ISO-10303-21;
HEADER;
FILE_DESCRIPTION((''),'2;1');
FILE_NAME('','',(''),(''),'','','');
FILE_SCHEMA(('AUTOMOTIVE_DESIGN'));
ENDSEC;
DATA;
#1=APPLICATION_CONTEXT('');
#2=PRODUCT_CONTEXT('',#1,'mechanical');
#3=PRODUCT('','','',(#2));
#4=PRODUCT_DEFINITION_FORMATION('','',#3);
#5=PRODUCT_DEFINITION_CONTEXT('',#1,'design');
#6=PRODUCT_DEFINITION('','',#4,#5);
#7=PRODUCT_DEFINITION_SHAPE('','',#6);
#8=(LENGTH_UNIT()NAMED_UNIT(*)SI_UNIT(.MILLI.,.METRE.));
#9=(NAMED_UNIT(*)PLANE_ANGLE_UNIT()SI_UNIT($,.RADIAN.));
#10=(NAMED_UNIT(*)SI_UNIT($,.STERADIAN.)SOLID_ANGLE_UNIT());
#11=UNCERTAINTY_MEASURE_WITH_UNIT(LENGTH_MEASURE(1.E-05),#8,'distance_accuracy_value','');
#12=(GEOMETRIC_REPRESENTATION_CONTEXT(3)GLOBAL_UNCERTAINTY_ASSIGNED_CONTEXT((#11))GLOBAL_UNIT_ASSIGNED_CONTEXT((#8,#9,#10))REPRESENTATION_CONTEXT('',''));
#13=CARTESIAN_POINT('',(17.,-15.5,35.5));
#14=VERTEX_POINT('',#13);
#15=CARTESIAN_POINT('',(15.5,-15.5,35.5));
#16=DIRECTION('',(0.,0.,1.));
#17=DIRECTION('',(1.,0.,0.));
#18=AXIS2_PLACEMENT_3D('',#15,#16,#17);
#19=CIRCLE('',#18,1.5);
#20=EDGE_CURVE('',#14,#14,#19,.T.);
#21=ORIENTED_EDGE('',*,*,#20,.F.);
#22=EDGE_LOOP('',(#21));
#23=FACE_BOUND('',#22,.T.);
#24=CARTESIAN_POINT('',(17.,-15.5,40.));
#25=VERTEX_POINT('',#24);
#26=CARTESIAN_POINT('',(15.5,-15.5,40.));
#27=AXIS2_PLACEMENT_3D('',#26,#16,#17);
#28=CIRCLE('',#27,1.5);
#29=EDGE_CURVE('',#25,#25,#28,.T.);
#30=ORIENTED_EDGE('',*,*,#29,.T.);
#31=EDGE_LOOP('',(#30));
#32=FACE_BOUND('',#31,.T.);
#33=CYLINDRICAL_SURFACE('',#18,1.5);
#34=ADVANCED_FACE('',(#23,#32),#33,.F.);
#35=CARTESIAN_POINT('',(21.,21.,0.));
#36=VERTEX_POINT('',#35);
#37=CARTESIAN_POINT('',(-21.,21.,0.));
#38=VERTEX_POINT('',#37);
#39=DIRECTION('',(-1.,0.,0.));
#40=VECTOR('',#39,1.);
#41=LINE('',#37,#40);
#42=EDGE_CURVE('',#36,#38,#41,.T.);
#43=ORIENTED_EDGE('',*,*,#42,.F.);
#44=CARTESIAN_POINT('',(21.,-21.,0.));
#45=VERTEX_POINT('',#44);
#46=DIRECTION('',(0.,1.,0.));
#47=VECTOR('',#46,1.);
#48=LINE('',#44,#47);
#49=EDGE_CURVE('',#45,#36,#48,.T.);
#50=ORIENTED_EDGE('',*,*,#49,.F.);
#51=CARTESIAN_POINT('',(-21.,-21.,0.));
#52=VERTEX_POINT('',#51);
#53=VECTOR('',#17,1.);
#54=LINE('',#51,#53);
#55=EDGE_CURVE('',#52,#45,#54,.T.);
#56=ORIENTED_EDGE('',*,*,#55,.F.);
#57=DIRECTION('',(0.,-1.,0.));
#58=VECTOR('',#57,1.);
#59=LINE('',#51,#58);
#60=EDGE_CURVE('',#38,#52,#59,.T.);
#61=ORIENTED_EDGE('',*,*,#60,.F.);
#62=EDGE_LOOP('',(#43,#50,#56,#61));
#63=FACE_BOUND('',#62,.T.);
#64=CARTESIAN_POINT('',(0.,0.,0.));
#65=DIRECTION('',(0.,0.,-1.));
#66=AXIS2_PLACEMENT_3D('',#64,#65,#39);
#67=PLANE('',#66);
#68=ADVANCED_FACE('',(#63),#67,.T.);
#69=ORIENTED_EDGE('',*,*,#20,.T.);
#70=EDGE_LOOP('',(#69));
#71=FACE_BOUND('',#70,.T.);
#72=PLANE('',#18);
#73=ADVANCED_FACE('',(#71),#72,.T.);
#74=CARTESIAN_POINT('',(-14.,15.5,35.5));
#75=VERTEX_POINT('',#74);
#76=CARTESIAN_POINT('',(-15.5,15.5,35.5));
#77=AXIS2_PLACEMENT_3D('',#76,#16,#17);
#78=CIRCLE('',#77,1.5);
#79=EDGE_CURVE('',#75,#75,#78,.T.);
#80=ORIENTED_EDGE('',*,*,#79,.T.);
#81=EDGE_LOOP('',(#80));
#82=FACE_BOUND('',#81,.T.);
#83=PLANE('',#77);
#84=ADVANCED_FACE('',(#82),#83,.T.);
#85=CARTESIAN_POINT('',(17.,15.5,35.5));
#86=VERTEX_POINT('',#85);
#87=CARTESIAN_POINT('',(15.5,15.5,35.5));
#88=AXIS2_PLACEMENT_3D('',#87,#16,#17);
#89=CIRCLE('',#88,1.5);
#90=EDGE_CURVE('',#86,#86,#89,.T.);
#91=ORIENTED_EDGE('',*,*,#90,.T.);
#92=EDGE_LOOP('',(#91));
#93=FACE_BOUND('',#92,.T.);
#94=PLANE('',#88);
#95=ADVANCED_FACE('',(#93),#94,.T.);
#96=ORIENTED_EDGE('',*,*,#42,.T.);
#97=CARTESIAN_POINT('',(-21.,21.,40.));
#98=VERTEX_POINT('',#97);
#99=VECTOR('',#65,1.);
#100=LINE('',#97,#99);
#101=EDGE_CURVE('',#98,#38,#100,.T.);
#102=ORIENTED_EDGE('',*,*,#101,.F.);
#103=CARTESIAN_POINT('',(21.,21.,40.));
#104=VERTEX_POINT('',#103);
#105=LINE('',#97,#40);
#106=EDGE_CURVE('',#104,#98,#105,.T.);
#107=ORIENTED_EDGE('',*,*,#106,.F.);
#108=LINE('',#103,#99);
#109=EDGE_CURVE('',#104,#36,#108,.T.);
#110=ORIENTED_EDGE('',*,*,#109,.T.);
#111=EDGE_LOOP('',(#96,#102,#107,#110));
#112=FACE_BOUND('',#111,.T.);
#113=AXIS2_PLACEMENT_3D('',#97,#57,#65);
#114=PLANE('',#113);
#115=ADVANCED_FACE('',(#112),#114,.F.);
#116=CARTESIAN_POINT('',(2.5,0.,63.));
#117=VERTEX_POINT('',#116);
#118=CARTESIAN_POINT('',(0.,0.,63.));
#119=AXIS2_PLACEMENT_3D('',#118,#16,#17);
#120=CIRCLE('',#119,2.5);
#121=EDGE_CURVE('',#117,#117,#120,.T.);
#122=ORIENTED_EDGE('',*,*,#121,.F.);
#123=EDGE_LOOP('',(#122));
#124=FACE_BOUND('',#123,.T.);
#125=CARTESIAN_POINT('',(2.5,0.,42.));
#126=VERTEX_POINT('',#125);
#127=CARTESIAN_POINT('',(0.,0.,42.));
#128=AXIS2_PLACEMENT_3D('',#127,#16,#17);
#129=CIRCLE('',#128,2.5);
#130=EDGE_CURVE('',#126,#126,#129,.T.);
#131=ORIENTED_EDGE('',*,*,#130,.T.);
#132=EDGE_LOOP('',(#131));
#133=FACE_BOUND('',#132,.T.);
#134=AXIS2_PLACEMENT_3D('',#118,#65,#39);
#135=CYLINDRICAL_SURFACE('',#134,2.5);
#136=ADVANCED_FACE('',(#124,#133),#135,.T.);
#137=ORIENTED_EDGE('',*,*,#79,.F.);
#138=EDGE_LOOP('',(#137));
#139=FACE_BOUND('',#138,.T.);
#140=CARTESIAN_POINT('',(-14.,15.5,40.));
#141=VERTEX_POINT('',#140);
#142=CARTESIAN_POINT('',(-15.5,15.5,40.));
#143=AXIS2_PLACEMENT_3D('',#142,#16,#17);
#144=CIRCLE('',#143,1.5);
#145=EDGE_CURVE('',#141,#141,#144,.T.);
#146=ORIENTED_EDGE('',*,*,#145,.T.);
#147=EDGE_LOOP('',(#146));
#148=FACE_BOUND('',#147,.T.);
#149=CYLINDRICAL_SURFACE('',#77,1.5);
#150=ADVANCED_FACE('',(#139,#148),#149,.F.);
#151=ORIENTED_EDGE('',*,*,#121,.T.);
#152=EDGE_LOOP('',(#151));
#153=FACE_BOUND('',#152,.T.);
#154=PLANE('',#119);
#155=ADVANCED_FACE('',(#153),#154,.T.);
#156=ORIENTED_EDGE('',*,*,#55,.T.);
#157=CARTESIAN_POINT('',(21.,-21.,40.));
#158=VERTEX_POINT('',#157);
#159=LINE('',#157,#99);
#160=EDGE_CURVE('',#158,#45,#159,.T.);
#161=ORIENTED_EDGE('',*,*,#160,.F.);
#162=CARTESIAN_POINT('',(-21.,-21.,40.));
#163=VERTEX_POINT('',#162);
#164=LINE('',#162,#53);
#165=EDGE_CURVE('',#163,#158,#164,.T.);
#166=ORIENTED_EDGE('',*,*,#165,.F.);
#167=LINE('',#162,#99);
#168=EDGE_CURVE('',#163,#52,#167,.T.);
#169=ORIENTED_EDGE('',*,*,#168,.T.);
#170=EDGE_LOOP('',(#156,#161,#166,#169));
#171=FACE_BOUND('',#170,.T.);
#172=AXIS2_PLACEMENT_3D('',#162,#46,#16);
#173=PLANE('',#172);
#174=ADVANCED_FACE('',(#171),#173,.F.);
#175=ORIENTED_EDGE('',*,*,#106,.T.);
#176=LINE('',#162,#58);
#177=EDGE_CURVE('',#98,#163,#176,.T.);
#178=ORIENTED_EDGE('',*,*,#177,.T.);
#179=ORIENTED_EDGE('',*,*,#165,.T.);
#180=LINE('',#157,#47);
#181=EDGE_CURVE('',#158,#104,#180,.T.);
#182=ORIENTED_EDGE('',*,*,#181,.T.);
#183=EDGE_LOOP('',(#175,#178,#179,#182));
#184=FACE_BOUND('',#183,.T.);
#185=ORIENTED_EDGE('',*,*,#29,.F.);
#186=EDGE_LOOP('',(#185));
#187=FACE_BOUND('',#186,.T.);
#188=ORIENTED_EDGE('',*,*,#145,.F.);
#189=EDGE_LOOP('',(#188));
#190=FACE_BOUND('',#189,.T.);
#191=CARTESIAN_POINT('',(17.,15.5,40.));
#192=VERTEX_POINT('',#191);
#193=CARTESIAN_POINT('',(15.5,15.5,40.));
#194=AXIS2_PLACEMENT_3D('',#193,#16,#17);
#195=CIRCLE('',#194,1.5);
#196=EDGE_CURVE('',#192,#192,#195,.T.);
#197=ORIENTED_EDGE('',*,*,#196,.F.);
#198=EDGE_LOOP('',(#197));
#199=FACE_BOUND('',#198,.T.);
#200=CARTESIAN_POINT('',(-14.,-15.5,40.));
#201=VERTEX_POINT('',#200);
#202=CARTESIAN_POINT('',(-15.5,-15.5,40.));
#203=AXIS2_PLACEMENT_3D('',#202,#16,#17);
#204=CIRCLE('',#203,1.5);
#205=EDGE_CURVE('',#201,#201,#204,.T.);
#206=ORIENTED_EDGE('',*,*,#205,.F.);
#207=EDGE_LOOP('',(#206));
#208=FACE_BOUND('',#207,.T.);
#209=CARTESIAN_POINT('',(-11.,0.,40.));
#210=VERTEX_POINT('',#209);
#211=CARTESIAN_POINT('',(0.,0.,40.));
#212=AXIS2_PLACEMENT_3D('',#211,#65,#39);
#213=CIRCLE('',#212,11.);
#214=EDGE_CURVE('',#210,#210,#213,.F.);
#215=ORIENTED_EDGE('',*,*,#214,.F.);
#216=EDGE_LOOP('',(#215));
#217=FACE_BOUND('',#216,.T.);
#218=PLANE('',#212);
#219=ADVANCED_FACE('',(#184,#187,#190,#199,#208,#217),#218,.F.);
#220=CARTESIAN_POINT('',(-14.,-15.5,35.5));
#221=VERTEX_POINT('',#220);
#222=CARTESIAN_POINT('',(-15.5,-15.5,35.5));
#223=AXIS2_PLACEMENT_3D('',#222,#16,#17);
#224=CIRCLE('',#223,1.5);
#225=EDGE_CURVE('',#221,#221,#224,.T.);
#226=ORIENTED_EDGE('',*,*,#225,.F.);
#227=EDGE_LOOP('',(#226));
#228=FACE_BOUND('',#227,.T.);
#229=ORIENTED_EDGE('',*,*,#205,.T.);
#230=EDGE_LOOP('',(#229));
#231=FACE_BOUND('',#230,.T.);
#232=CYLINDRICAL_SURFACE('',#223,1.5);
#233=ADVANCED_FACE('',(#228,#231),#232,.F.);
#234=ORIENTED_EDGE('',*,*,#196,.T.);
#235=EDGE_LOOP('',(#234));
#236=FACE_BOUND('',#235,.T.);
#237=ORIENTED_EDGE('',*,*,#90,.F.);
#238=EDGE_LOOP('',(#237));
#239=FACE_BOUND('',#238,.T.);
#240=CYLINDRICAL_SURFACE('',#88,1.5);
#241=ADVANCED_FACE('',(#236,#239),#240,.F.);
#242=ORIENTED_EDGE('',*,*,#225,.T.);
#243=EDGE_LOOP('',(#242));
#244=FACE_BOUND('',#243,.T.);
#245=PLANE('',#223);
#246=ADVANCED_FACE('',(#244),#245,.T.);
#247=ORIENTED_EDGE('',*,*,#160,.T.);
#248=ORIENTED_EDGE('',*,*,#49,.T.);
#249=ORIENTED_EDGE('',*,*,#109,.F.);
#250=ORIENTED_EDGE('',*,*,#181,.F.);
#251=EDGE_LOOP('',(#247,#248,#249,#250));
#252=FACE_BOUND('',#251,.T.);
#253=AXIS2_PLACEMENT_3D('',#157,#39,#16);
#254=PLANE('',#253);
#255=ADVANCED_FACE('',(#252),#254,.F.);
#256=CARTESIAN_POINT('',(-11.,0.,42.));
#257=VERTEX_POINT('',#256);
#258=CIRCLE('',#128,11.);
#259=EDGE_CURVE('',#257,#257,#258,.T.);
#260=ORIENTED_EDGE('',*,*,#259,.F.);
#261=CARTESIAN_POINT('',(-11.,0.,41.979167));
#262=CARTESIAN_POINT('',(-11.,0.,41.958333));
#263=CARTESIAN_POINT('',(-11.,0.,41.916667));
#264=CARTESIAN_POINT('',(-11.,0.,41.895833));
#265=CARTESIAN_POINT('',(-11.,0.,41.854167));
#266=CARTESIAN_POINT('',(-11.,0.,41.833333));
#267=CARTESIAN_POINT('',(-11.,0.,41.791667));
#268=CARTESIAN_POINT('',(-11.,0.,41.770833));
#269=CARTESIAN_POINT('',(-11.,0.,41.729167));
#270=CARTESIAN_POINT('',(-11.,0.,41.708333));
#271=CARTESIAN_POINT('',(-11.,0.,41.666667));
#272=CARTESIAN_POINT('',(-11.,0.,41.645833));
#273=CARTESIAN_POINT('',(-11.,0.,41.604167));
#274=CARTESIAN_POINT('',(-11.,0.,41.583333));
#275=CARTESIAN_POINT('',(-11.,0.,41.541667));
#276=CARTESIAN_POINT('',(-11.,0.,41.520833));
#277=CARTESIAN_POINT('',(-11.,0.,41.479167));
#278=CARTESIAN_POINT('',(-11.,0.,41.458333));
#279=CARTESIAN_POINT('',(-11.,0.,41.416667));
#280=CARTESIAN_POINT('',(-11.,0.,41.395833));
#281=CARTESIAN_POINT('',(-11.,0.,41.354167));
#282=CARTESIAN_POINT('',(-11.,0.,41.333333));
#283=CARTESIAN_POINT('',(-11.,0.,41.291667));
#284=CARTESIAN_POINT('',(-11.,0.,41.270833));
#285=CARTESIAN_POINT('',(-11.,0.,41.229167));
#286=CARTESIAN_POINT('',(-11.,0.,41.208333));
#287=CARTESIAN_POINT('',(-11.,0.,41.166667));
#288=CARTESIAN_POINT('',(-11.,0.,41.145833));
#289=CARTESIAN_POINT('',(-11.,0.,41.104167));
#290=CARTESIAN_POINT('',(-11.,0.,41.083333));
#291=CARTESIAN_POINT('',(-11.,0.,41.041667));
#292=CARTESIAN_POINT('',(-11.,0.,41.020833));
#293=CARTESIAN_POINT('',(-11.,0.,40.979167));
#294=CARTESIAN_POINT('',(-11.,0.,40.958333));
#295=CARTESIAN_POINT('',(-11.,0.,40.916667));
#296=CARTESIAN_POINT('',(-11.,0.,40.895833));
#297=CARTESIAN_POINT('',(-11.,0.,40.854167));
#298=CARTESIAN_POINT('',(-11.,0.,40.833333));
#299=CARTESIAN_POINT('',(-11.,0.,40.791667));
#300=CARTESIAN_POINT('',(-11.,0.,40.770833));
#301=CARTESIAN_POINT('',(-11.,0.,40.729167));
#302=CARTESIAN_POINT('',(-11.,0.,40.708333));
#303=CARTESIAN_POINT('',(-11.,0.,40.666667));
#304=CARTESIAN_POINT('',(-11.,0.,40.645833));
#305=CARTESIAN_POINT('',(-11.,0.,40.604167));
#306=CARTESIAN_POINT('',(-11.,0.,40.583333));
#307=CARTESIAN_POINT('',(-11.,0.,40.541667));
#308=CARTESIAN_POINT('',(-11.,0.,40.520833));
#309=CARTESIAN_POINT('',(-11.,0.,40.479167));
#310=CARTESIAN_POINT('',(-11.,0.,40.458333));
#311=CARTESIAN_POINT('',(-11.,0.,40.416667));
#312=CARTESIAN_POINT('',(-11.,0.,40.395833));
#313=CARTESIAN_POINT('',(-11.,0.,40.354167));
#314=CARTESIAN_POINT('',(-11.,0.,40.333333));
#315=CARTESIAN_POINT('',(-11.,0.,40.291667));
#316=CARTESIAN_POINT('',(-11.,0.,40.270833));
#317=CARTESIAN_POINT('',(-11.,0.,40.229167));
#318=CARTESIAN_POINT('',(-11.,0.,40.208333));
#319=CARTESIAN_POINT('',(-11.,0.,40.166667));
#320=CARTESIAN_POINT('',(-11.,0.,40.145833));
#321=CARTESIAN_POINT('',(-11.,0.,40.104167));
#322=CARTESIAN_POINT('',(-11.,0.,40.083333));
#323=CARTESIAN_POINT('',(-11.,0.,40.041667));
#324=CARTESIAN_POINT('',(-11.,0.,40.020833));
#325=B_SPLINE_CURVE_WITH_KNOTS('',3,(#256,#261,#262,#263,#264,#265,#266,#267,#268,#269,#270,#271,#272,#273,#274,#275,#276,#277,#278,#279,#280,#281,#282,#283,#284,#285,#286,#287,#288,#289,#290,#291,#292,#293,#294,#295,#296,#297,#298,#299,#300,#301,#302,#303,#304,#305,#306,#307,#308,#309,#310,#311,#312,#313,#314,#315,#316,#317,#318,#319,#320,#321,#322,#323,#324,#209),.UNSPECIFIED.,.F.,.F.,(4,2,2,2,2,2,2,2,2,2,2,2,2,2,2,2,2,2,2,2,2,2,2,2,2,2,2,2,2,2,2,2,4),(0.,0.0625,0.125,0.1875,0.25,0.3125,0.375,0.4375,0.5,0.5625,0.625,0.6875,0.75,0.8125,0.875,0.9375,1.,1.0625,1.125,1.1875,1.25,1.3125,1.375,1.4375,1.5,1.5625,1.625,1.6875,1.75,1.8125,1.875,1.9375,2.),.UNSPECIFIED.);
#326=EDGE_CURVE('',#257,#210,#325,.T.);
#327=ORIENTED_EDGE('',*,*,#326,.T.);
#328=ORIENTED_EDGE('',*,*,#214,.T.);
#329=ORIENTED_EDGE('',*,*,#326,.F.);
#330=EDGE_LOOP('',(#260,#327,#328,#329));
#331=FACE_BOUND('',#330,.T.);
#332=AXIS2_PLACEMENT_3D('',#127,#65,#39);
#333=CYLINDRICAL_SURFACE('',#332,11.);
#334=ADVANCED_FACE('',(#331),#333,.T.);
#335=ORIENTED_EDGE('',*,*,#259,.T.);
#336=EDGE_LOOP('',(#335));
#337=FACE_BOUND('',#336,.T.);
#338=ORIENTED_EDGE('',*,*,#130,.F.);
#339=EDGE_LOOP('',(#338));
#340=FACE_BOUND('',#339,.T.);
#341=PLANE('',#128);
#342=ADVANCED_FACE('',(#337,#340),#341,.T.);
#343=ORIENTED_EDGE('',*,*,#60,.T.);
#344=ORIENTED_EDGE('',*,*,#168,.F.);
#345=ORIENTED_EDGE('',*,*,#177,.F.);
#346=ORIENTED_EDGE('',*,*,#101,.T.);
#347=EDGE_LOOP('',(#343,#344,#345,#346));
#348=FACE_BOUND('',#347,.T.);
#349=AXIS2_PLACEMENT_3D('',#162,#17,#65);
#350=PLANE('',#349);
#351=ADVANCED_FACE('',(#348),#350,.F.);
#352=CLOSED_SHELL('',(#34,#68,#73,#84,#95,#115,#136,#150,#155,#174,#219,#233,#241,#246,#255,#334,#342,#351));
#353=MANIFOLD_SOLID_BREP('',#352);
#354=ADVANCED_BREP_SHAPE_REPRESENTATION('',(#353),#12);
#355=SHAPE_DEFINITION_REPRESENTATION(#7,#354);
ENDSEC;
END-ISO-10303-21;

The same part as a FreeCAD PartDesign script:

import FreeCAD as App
import Part
import Sketcher
Q = App.Units.Quantity

doc = App.newDocument("Part")
body = doc.addObject("PartDesign::Body", "Body")

# Sketch on XY plane
sketch1 = body.newObject("Sketcher::SketchObject", "Sketch")
sketch1.AttachmentSupport = (doc.getObject("XY_Plane"), [""])
sketch1.MapMode = "FlatFace"
sketch1.addGeometry([
    Part.LineSegment(App.Vector(-21, 21, 0), App.Vector(-21, -21, 0)),
    Part.LineSegment(App.Vector(-21, -21, 0), App.Vector(21, -21, 0)),
    Part.LineSegment(App.Vector(21, -21, 0), App.Vector(21, 21, 0)),
    Part.LineSegment(App.Vector(21, 21, 0), App.Vector(-21, 21, 0)),
], False)
sketch1.addConstraint([
    Sketcher.Constraint("Coincident", 0, 2, 1, 1),
    Sketcher.Constraint("Coincident", 1, 2, 2, 1),
    Sketcher.Constraint("Coincident", 2, 2, 3, 1),
    Sketcher.Constraint("Coincident", 3, 2, 0, 1),
    Sketcher.Constraint("Vertical", 0),
    Sketcher.Constraint("Horizontal", 1),
    Sketcher.Constraint("Vertical", 2),
    Sketcher.Constraint("Horizontal", 3),
    Sketcher.Constraint("Symmetric", 0, 2, 2, 2, -1, 1),
    Sketcher.Constraint("Equal", 3, 0),
    Sketcher.Constraint("DistanceX", 1, 1, 1, 2, Q("42 mm")),
])
pad1 = body.newObject("PartDesign::Pad", "Pad")
pad1.Profile = sketch1
pad1.Length = 40

# Sketch on XY plane
sketch2 = body.newObject("Sketcher::SketchObject", "Sketch001")
sketch2.AttachmentSupport = (doc.getObject("XY_Plane"), [""])
sketch2.MapMode = "FlatFace"
sketch2.addGeometry(Part.Circle(App.Vector(0, 0, 0), App.Vector(0, 0, 1), 2.5), False)
sketch2.addConstraint([
    Sketcher.Constraint("Coincident", 0, 3, -1, 1),
    Sketcher.Constraint("Diameter", 0, Q("5 mm")),
])
pad2 = body.newObject("PartDesign::Pad", "Pad001")
pad2.Profile = sketch2
pad2.Length = 63

# Sketch on XY plane
sketch3 = body.newObject("Sketcher::SketchObject", "Sketch002")
sketch3.AttachmentSupport = (doc.getObject("XY_Plane"), [""])
sketch3.MapMode = "FlatFace"
sketch3.addGeometry(Part.Circle(App.Vector(0, 0, 0), App.Vector(0, 0, 1), 11), False)
sketch3.addConstraint([
    Sketcher.Constraint("Coincident", 0, 3, -1, 1),
    Sketcher.Constraint("Diameter", 0, Q("22 mm")),
])
pad3 = body.newObject("PartDesign::Pad", "Pad002")
pad3.Profile = sketch3
pad3.Length = 42

# Sketch on XY plane
sketch4 = body.newObject("Sketcher::SketchObject", "Sketch003")
sketch4.AttachmentSupport = (doc.getObject("XY_Plane"), [""])
sketch4.MapMode = "FlatFace"
sketch4.AttachmentOffset = App.Placement(App.Vector(0, 0, 40), App.Rotation())
sketch4.addGeometry([
    Part.Circle(App.Vector(-15.5, -15.5, 0), App.Vector(0, 0, 1), 1.5),
    Part.Circle(App.Vector(-15.5, 15.5, 0), App.Vector(0, 0, 1), 1.5),
    Part.Circle(App.Vector(15.5, -15.5, 0), App.Vector(0, 0, 1), 1.5),
    Part.Circle(App.Vector(15.5, 15.5, 0), App.Vector(0, 0, 1), 1.5),
], False)
sketch4.addConstraint([
    Sketcher.Constraint("Equal", 0, 1),
    Sketcher.Constraint("Equal", 1, 2),
    Sketcher.Constraint("Equal", 2, 3),
    Sketcher.Constraint("Symmetric", 1, 3, 2, 3, -1, 1),
    Sketcher.Constraint("Symmetric", 0, 3, 3, 3, -1, 1),
    Sketcher.Constraint("Symmetric", 0, 3, 2, 3, -2),
    Sketcher.Constraint("Diameter", 0, Q("3 mm")),
    Sketcher.Constraint("DistanceY", 0, 3, 1, 3, Q("31 mm")),
    Sketcher.Constraint("DistanceX", 0, 3, 2, 3, Q("31 mm")),
])
pocket1 = body.newObject("PartDesign::Pocket", "Pocket")
pocket1.Profile = sketch4
pocket1.Length = 4.5

doc.recompute()
